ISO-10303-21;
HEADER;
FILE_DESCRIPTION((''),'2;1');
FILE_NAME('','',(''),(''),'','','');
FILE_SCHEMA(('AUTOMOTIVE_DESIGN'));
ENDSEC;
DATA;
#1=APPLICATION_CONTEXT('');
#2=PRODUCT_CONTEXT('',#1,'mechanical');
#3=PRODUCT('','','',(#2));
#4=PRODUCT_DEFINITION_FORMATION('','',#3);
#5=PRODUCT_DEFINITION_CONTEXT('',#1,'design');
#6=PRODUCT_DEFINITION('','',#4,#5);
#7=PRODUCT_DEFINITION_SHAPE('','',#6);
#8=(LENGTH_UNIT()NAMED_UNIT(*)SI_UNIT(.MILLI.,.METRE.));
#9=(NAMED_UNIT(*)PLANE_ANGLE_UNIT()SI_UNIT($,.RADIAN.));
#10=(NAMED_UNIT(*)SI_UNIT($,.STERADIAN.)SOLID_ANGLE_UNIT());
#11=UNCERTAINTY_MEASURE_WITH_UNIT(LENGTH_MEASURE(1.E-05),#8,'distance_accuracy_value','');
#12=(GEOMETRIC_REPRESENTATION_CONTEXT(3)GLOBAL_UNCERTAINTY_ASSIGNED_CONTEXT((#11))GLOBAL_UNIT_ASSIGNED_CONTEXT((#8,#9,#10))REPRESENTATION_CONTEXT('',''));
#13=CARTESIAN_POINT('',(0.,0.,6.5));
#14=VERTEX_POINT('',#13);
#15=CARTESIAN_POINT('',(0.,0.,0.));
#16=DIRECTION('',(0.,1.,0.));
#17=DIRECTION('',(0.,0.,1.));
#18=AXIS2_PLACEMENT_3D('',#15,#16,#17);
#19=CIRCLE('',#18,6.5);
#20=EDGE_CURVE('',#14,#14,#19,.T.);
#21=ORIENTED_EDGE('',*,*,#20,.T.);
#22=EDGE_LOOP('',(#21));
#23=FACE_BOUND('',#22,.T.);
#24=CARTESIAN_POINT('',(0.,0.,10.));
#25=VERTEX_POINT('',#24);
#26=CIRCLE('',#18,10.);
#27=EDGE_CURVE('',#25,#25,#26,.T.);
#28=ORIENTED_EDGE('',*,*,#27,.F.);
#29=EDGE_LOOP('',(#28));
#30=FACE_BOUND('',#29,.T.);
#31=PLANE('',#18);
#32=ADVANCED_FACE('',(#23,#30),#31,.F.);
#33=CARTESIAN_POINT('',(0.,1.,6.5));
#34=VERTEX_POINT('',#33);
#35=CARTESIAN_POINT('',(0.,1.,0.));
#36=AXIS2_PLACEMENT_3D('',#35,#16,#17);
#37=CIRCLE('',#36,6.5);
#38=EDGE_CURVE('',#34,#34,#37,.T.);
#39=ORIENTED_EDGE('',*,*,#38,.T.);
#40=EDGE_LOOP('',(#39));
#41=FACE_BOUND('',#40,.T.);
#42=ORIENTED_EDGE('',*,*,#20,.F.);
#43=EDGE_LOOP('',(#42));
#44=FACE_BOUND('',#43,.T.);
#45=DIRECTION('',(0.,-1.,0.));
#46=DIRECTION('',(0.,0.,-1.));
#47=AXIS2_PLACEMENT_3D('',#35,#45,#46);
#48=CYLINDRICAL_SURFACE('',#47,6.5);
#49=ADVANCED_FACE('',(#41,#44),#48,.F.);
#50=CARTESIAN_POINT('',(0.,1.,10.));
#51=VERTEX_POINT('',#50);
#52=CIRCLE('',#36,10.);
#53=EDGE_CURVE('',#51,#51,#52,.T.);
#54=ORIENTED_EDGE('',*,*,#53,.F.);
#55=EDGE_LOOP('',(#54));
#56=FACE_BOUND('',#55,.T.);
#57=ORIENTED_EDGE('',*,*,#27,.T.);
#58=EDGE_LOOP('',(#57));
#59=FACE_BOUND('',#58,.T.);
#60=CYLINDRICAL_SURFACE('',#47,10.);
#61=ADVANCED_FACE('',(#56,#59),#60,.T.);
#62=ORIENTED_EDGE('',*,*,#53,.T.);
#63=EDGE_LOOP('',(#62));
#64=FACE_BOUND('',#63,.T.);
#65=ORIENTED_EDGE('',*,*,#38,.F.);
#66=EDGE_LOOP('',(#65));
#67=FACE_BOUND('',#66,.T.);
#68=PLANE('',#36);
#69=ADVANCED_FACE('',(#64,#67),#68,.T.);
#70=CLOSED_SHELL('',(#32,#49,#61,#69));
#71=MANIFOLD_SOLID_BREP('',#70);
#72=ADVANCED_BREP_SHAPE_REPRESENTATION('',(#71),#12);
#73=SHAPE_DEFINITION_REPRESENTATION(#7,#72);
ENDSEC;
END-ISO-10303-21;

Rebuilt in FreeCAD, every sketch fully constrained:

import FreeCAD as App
import Part
import Sketcher

V = App.Vector

doc = App.newDocument("Part")
body = doc.addObject("PartDesign::Body", "Body")

# Sketch on XZ plane
sketch1 = body.newObject("Sketcher::SketchObject", "Sketch")
sketch1.AttachmentSupport = (doc.getObject("XZ_Plane"), [""])
sketch1.MapMode = "FlatFace"
sketch1.addGeometry([
    Part.Circle(V(0, 0, 0), V(0, 0, 1), 10),
    Part.Circle(V(0, 0, 0), V(0, 0, 1), 6),
], False)
sketch1.addConstraint([
    Sketcher.Constraint("Coincident", 0, 3, -1, 1),
    Sketcher.Constraint("Coincident", 1, 3, -1, 1),
    Sketcher.Constraint("Diameter", 0, 20.0),
    Sketcher.Constraint("Diameter", 1, 13.0),
])
pad1 = body.newObject("PartDesign::Pad", "Pad")
pad1.Profile = sketch1
pad1.Length = 1
pad1.Reversed = True

doc.recompute()
